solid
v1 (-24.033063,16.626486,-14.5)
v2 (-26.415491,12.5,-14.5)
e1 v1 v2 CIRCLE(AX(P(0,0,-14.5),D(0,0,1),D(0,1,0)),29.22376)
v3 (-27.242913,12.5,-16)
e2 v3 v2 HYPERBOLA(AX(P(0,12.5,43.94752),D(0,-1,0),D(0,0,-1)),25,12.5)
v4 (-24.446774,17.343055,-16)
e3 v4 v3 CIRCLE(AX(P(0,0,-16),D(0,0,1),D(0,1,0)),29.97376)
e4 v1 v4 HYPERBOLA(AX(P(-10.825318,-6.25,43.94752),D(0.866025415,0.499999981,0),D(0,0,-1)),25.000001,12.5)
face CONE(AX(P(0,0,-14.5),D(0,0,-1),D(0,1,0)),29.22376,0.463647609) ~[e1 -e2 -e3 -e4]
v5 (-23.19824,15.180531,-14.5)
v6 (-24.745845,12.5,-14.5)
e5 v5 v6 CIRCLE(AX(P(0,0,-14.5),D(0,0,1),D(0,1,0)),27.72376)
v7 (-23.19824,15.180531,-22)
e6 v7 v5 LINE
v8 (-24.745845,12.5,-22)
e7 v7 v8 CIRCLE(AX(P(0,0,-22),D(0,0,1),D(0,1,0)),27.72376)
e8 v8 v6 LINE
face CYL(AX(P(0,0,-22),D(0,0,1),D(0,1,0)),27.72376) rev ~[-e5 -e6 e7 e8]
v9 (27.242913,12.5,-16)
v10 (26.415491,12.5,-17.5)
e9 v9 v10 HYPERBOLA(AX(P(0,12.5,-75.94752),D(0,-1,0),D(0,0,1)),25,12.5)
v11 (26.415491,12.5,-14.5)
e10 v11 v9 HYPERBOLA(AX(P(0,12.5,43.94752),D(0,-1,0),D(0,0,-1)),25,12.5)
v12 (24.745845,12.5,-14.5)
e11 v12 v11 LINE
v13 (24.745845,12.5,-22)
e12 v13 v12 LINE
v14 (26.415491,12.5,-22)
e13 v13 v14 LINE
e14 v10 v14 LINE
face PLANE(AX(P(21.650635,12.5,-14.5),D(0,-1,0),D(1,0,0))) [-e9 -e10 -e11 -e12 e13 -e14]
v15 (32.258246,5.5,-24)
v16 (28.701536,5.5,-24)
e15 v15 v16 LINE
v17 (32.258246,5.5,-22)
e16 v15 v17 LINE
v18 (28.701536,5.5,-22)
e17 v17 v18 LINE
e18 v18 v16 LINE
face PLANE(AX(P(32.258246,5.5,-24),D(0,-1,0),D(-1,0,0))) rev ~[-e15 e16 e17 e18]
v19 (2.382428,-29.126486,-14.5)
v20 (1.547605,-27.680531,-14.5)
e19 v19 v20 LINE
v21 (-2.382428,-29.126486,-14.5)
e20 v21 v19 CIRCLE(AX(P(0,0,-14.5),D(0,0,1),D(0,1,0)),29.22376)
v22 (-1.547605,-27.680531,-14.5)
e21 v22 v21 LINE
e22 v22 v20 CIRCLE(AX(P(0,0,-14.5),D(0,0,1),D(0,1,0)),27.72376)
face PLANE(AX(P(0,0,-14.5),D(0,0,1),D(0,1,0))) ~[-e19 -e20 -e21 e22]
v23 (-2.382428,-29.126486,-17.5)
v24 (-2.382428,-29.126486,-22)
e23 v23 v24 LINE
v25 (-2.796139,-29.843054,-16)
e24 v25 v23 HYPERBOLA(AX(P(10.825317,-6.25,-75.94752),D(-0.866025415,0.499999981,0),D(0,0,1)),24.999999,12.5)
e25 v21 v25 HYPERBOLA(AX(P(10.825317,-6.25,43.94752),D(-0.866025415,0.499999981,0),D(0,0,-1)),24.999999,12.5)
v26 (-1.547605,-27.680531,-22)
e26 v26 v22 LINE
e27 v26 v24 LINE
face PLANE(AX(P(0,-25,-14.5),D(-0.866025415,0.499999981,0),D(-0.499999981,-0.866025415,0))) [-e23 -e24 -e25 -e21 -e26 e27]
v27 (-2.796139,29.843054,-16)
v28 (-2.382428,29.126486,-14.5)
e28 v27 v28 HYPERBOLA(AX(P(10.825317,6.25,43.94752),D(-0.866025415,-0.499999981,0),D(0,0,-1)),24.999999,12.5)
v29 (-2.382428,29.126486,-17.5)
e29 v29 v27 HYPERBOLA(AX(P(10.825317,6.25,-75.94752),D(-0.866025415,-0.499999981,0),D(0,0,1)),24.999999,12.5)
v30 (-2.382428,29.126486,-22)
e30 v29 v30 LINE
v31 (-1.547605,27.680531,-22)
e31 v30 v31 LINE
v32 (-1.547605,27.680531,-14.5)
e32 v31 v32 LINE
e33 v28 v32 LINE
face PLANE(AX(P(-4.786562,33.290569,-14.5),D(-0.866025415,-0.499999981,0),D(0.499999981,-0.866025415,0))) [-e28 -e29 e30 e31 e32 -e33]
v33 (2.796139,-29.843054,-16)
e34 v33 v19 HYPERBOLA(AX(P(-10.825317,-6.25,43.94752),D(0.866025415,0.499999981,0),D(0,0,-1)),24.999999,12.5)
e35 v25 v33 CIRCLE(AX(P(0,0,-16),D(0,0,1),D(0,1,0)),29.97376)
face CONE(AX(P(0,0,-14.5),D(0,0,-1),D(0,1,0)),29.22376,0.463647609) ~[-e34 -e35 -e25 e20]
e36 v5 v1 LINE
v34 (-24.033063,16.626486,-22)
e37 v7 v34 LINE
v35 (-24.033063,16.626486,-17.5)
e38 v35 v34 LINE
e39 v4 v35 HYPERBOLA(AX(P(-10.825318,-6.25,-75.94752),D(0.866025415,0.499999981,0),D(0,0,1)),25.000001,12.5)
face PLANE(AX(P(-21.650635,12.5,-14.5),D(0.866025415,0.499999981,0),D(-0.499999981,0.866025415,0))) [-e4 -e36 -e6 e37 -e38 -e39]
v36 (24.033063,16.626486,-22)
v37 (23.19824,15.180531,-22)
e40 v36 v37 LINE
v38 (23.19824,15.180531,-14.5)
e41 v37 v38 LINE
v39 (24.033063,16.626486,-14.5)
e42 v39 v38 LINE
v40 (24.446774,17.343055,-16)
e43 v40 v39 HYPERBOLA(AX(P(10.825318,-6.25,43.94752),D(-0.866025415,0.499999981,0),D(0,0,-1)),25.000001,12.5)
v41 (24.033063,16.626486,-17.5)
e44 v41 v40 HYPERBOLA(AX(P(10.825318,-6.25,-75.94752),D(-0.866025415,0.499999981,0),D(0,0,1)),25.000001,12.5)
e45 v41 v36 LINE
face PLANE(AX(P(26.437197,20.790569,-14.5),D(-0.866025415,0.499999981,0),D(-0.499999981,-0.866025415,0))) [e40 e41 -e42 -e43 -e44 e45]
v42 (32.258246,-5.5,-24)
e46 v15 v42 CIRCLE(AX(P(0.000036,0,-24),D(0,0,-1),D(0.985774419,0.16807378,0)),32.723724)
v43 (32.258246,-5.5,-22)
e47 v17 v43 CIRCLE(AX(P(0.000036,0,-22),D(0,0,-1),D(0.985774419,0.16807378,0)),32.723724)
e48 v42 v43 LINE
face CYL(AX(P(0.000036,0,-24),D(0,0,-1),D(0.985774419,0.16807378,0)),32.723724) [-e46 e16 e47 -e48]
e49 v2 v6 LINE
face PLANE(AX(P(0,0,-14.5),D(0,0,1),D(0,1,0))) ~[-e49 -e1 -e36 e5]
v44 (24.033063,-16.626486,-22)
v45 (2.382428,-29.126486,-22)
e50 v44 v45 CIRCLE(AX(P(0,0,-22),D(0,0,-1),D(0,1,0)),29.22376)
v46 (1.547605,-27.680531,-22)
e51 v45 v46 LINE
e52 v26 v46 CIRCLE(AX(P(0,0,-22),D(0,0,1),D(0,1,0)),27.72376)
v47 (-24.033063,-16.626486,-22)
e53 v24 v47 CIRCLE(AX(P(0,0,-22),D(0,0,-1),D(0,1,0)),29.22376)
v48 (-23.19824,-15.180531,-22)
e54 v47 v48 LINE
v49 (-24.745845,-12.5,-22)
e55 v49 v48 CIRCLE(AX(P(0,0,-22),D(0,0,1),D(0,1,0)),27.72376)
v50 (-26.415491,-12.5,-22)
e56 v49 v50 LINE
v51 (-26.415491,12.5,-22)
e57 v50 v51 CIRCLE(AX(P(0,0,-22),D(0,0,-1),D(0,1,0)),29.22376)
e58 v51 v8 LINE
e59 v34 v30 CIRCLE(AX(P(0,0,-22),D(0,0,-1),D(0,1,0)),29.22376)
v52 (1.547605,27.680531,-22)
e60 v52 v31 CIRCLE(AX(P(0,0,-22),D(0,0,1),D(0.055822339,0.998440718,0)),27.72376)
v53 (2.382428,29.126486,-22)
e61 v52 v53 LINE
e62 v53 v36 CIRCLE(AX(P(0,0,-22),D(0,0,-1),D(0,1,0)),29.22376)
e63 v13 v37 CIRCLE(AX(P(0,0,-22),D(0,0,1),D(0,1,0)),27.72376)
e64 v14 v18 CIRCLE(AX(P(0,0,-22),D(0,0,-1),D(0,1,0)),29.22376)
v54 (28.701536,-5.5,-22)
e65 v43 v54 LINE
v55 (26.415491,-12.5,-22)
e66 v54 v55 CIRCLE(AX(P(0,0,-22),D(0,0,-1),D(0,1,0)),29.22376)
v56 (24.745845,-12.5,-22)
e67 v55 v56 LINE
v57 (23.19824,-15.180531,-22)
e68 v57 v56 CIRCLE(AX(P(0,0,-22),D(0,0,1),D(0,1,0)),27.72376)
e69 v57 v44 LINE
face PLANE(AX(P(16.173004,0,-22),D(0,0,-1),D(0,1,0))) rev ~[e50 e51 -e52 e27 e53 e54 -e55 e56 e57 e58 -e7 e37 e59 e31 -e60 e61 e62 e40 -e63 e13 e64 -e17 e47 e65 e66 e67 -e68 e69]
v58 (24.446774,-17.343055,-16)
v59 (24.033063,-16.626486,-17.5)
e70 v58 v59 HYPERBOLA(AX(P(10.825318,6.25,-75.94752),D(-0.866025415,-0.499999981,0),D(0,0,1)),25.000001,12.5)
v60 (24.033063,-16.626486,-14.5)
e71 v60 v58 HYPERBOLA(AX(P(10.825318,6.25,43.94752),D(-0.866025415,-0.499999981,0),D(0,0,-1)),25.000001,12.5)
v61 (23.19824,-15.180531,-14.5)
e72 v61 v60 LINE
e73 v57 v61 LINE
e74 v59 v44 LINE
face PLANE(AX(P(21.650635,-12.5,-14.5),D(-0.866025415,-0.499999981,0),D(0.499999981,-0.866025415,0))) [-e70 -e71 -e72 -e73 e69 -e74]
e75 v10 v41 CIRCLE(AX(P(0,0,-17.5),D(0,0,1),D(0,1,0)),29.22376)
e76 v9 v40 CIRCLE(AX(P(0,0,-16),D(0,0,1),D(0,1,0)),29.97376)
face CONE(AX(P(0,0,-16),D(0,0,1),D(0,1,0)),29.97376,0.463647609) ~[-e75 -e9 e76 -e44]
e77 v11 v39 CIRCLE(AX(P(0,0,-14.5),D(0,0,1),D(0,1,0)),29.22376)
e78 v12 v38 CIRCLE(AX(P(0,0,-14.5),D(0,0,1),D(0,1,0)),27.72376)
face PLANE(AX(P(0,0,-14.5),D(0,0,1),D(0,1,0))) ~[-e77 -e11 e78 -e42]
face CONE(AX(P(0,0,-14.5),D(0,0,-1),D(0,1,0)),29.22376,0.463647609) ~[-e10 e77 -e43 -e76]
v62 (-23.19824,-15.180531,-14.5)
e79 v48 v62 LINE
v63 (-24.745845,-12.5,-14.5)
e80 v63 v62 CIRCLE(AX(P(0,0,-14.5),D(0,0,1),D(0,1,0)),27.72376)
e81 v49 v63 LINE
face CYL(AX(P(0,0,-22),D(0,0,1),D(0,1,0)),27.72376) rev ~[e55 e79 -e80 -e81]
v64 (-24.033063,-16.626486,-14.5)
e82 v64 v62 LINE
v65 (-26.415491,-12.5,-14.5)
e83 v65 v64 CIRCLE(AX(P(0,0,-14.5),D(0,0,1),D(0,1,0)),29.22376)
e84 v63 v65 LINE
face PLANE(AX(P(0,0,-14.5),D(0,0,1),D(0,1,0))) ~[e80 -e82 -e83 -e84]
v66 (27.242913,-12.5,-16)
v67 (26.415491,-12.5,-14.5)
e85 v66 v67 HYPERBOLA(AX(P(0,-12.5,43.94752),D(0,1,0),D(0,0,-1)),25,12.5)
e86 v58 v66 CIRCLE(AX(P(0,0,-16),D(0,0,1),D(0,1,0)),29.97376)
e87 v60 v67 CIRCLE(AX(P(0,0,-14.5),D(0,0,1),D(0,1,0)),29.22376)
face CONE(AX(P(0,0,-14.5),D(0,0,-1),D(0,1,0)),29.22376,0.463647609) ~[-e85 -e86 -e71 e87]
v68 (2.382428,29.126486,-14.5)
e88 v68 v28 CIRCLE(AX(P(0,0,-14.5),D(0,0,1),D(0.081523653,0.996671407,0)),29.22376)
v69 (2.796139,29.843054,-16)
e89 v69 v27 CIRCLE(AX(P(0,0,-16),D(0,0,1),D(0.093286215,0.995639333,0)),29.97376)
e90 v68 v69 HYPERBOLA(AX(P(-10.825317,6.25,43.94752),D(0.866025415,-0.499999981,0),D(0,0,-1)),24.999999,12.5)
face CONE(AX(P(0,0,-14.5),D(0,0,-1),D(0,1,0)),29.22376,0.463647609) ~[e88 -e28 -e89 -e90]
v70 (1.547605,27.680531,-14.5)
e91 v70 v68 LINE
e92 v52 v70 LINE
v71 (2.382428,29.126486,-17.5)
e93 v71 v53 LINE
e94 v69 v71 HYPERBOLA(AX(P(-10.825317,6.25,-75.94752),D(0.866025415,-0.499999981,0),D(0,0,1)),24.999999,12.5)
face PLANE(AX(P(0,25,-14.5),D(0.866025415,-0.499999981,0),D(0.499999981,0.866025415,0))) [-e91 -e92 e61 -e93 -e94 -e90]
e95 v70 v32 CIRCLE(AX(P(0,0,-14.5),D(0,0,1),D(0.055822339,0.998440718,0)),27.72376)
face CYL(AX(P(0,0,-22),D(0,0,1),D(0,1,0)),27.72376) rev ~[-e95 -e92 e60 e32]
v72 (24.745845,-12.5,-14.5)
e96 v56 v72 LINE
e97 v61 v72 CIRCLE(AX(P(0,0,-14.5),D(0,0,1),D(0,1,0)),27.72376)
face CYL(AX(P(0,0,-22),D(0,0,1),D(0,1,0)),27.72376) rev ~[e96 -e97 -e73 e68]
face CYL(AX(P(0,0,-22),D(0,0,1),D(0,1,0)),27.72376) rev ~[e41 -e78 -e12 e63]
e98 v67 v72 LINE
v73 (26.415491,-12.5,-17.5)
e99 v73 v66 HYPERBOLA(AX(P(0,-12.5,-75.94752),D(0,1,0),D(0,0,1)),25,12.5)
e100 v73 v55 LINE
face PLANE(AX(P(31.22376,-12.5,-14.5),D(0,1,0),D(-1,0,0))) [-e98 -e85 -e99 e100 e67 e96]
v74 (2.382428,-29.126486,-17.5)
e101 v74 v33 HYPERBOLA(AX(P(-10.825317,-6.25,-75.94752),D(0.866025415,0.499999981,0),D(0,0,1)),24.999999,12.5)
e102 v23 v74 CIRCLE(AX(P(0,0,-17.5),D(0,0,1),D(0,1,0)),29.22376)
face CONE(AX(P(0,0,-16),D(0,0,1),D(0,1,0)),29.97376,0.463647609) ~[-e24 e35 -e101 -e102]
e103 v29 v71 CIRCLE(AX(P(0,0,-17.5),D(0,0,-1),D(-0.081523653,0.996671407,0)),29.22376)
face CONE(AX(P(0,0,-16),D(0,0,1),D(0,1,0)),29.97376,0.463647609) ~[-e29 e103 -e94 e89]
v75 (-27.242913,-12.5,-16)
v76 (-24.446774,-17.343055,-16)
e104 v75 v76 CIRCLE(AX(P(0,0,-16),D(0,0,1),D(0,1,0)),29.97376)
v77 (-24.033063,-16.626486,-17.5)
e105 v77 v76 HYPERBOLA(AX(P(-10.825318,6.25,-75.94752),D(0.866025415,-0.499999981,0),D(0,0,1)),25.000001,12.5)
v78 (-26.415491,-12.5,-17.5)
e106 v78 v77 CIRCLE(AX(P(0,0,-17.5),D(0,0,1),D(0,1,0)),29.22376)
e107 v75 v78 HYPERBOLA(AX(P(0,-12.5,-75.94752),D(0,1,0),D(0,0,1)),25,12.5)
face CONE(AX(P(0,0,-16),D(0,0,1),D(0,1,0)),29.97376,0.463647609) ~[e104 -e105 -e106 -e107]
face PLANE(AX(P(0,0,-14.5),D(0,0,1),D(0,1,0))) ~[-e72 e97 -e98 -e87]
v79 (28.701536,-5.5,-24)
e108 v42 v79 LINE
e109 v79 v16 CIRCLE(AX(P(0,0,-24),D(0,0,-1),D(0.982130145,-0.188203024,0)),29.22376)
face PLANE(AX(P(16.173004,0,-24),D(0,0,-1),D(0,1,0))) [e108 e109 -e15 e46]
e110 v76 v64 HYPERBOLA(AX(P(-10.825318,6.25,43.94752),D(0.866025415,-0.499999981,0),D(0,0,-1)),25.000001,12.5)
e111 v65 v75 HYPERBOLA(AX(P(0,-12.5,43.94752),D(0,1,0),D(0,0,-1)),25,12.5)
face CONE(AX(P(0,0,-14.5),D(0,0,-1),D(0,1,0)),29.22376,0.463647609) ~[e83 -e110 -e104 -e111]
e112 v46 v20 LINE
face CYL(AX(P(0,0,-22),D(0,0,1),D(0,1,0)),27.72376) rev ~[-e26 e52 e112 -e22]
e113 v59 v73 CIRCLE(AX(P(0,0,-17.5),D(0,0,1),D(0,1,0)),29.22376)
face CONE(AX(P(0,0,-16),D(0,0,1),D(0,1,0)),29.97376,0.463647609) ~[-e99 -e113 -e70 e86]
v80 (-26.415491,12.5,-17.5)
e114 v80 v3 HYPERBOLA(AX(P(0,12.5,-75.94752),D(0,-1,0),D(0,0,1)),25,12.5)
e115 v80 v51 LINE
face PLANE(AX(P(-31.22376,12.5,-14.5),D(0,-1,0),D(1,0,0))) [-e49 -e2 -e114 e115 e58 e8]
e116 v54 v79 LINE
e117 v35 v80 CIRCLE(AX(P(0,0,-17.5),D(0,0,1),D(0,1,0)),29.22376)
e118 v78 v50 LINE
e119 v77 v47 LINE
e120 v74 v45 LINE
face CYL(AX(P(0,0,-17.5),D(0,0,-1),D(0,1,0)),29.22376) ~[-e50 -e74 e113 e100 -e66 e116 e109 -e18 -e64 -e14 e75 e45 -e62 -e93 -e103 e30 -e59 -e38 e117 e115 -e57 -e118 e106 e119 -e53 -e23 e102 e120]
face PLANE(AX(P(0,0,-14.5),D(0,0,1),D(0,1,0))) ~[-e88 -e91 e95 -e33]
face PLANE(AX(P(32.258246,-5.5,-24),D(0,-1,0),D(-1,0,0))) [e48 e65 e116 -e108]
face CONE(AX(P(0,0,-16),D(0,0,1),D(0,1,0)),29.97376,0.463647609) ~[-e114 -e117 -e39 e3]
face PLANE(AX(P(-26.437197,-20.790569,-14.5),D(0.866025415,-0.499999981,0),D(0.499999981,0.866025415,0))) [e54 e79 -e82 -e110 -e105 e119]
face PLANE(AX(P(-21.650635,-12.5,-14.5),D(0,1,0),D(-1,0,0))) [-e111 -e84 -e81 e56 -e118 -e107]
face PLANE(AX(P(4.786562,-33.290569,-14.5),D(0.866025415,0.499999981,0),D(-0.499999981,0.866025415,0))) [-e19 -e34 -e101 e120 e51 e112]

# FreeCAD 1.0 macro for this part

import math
import FreeCAD as App
import Part
import Sketcher
from FreeCAD import Vector
Q = App.Units.Quantity

doc = App.newDocument("Part")
body = doc.addObject("PartDesign::Body", "Body")

sketch1 = body.newObject("Sketcher::SketchObject", "Sketch")
sketch1.AttachmentSupport = (doc.getObject("YZ_Plane"), [""])
sketch1.MapMode = "FlatFace"
sketch1.addGeometry(Part.LineSegment(Vector(27.7, -22, 0), Vector(0, -22, 0)), False)
sketch1.addGeometry(Part.LineSegment(Vector(0, -22, 0), Vector(0, -24, 0)), False)
sketch1.addGeometry(Part.LineSegment(Vector(0, -24, 0), Vector(29.2, -24, 0)), False)
sketch1.addGeometry(Part.LineSegment(Vector(29.2, -24, 0), Vector(29.2, -17.5, 0)), False)
sketch1.addGeometry(Part.LineSegment(Vector(29.2, -17.5, 0), Vector(30, -16, 0)), False)
sketch1.addGeometry(Part.LineSegment(Vector(30, -16, 0), Vector(29.2, -14.5, 0)), False)
sketch1.addGeometry(Part.LineSegment(Vector(29.2, -14.5, 0), Vector(27.7, -14.5, 0)), False)
sketch1.addGeometry(Part.LineSegment(Vector(27.7, -14.5, 0), Vector(27.7, -22, 0)), False)
sketch1.addConstraint(Sketcher.Constraint("Coincident", 0, 2, 1, 1))
sketch1.addConstraint(Sketcher.Constraint("Coincident", 1, 2, 2, 1))
sketch1.addConstraint(Sketcher.Constraint("Coincident", 2, 2, 3, 1))
sketch1.addConstraint(Sketcher.Constraint("Coincident", 3, 2, 4, 1))
sketch1.addConstraint(Sketcher.Constraint("Coincident", 4, 2, 5, 1))
sketch1.addConstraint(Sketcher.Constraint("Coincident", 5, 2, 6, 1))
sketch1.addConstraint(Sketcher.Constraint("Coincident", 6, 2, 7, 1))
sketch1.addConstraint(Sketcher.Constraint("Coincident", 7, 2, 0, 1))
sketch1.addConstraint(Sketcher.Constraint("Horizontal", 0))
sketch1.addConstraint(Sketcher.Constraint("Vertical", 1))
sketch1.addConstraint(Sketcher.Constraint("Horizontal", 2))
sketch1.addConstraint(Sketcher.Constraint("Vertical", 3))
sketch1.addConstraint(Sketcher.Constraint("Horizontal", 6))
sketch1.addConstraint(Sketcher.Constraint("Vertical", 7))
sketch1.addConstraint(Sketcher.Constraint("PointOnObject", 0, 2, -2))
sketch1.addConstraint(Sketcher.Constraint("Vertical", 3, 2, 5, 2))
sketch1.addConstraint(Sketcher.Constraint("Equal", 4, 5))
sketch1.addConstraint(Sketcher.Constraint("DistanceY", 1, 2, 1, 1, Q("2 mm")))
sketch1.addConstraint(Sketcher.Constraint("DistanceX", 6, 2, 6, 1, Q("1.5 mm")))
sketch1.addConstraint(Sketcher.Constraint("DistanceY", 3, 1, 3, 2, Q("6.5 mm")))
sketch1.addConstraint(Sketcher.Constraint("DistanceY", 7, 2, 7, 1, Q("7.5 mm")))
sketch1.addConstraint(Sketcher.Constraint("DistanceY", 0, 2, -1, 1, Q("22 mm")))
sketch1.addConstraint(Sketcher.Constraint("DistanceX", 3, 2, 4, 2, Q("0.75 mm")))
sketch1.addConstraint(Sketcher.Constraint("DistanceX", 0, 2, 0, 1, Q("27.72376 mm")))
revolution = body.newObject("PartDesign::Revolution", "Revolution")
revolution.Profile = sketch1
revolution.ReferenceAxis = (sketch1, ["V_Axis"])
revolution.Angle = 360

sketch2 = body.newObject("Sketcher::SketchObject", "Sketch001")
sketch2.AttachmentSupport = (doc.getObject("XY_Plane"), [""])
sketch2.MapMode = "FlatFace"
sketch2.AttachmentOffset = App.Placement(Vector(0, 0, -14.5), App.Rotation())
sketch2.addGeometry(Part.LineSegment(Vector(31, -12, 0), Vector(31, 12, 0)), False)
sketch2.addGeometry(Part.LineSegment(Vector(31, 12, 0), Vector(22, 12, 0)), False)
sketch2.addGeometry(Part.LineSegment(Vector(22, 12, 0), Vector(26, 21, 0)), False)
sketch2.addGeometry(Part.LineSegment(Vector(26, 21, 0), Vector(5, 33, 0)), False)
sketch2.addGeometry(Part.LineSegment(Vector(5, 33, 0), Vector(0, 25, 0)), False)
sketch2.addGeometry(Part.LineSegment(Vector(0, 25, 0), Vector(-5, 33, 0)), False)
sketch2.addGeometry(Part.LineSegment(Vector(-5, 33, 0), Vector(-26, 21, 0)), False)
sketch2.addGeometry(Part.LineSegment(Vector(-26, 21, 0), Vector(-22, 12, 0)), False)
sketch2.addGeometry(Part.LineSegment(Vector(-22, 12, 0), Vector(-31, 12, 0)), False)
sketch2.addGeometry(Part.LineSegment(Vector(-31, 12, 0), Vector(-31, -12, 0)), False)
sketch2.addGeometry(Part.LineSegment(Vector(-31, -12, 0), Vector(-22, -12, 0)), False)
sketch2.addGeometry(Part.LineSegment(Vector(-22, -12, 0), Vector(-26, -21, 0)), False)
sketch2.addGeometry(Part.LineSegment(Vector(-26, -21, 0), Vector(-5, -33, 0)), False)
sketch2.addGeometry(Part.LineSegment(Vector(-5, -33, 0), Vector(0, -25, 0)), False)
sketch2.addGeometry(Part.LineSegment(Vector(0, -25, 0), Vector(5, -33, 0)), False)
sketch2.addGeometry(Part.LineSegment(Vector(5, -33, 0), Vector(26, -21, 0)), False)
sketch2.addGeometry(Part.LineSegment(Vector(26, -21, 0), Vector(22, -12, 0)), False)
sketch2.addGeometry(Part.LineSegment(Vector(22, -12, 0), Vector(31, -12, 0)), False)
sketch2.addConstraint(Sketcher.Constraint("Coincident", 0, 2, 1, 1))
sketch2.addConstraint(Sketcher.Constraint("Coincident", 1, 2, 2, 1))
sketch2.addConstraint(Sketcher.Constraint("Coincident", 2, 2, 3, 1))
sketch2.addConstraint(Sketcher.Constraint("Coincident", 3, 2, 4, 1))
sketch2.addConstraint(Sketcher.Constraint("Coincident", 4, 2, 5, 1))
sketch2.addConstraint(Sketcher.Constraint("Coincident", 5, 2, 6, 1))
sketch2.addConstraint(Sketcher.Constraint("Coincident", 6, 2, 7, 1))
sketch2.addConstraint(Sketcher.Constraint("Coincident", 7, 2, 8, 1))
sketch2.addConstraint(Sketcher.Constraint("Coincident", 8, 2, 9, 1))
sketch2.addConstraint(Sketcher.Constraint("Coincident", 9, 2, 10, 1))
sketch2.addConstraint(Sketcher.Constraint("Coincident", 10, 2, 11, 1))
sketch2.addConstraint(Sketcher.Constraint("Coincident", 11, 2, 12, 1))
sketch2.addConstraint(Sketcher.Constraint("Coincident", 12, 2, 13, 1))
sketch2.addConstraint(Sketcher.Constraint("Coincident", 13, 2, 14, 1))
sketch2.addConstraint(Sketcher.Constraint("Coincident", 14, 2, 15, 1))
sketch2.addConstraint(Sketcher.Constraint("Coincident", 15, 2, 16, 1))
sketch2.addConstraint(Sketcher.Constraint("Coincident", 16, 2, 17, 1))
sketch2.addConstraint(Sketcher.Constraint("Coincident", 17, 2, 0, 1))
sketch2.addConstraint(Sketcher.Constraint("Vertical", 0))
sketch2.addConstraint(Sketcher.Constraint("Horizontal", 1))
sketch2.addConstraint(Sketcher.Constraint("Horizontal", 8))
sketch2.addConstraint(Sketcher.Constraint("Vertical", 9))
sketch2.addConstraint(Sketcher.Constraint("Horizontal", 10))
sketch2.addConstraint(Sketcher.Constraint("Horizontal", 17))
sketch2.addConstraint(Sketcher.Constraint("Symmetric", 0, 2, 9, 2, -1, 1))
sketch2.addConstraint(Sketcher.Constraint("Symmetric", 2, 2, 11, 2, -1, 1))
sketch2.addConstraint(Sketcher.Constraint("Symmetric", 3, 2, 12, 2, -1, 1))
sketch2.addConstraint(Sketcher.Constraint("Symmetric", 4, 2, 13, 2, -1, 1))
sketch2.addConstraint(Sketcher.Constraint("Symmetric", 5, 2, 14, 2, -1, 1))
sketch2.addConstraint(Sketcher.Constraint("Symmetric", 6, 2, 15, 2, -1, 1))
sketch2.addConstraint(Sketcher.Constraint("Symmetric", 7, 2, 16, 2, -1, 1))
sketch2.addConstraint(Sketcher.Constraint("Symmetric", 3, 2, 5, 2, -2))
sketch2.addConstraint(Sketcher.Constraint("Symmetric", 2, 2, 6, 2, -2))
sketch2.addConstraint(Sketcher.Constraint("Symmetric", 1, 2, 7, 2, -2))
sketch2.addConstraint(Sketcher.Constraint("PointOnObject", 4, 2, -2))
sketch2.addConstraint(Sketcher.Constraint("Perpendicular", 2, 3))
sketch2.addConstraint(Sketcher.Constraint("Perpendicular", 3, 4))
sketch2.addConstraint(Sketcher.Constraint("Parallel", 4, 11))
sketch2.addConstraint(Sketcher.Constraint("Equal", 2, 4))
sketch2.addConstraint(Sketcher.Constraint("DistanceY", 0, 1, 0, 2, Q("25 mm")))
sketch2.addConstraint(Sketcher.Constraint("Angle", 2, Q("60.000001 deg")))
sketch2.addConstraint(Sketcher.Constraint("Distance", 3, Q("25 mm")))
sketch2.addConstraint(Sketcher.Constraint("DistanceX", 1, 2, 1, 1, Q("9.573125 mm")))
sketch2.addConstraint(Sketcher.Constraint("DistanceY", -1, 1, 2, 2, Q("20.790569 mm")))
pocket1 = body.newObject("PartDesign::Pocket", "Pocket")
pocket1.Profile = sketch2
pocket1.Length = 7.5

sketch3 = body.newObject("Sketcher::SketchObject", "Sketch002")
sketch3.AttachmentSupport = (doc.getObject("XY_Plane"), [""])
sketch3.MapMode = "FlatFace"
sketch3.AttachmentOffset = App.Placement(Vector(0, 0, -24), App.Rotation())
sketch3.addGeometry(Part.ArcOfCircle(Part.Circle(Vector(0, 0, 0), Vector(0, 0, 1), 33), math.radians(-9.68), math.radians(9.68)), False)
sketch3.addGeometry(Part.LineSegment(Vector(32, -6, 0), Vector(0, -6, 0)), False)
sketch3.addGeometry(Part.LineSegment(Vector(0, -6, 0), Vector(0, 6, 0)), False)
sketch3.addGeometry(Part.LineSegment(Vector(0, 6, 0), Vector(32, 6, 0)), False)
sketch3.addConstraint(Sketcher.Constraint("Coincident", 0, 1, 1, 1))
sketch3.addConstraint(Sketcher.Constraint("Coincident", 1, 2, 2, 1))
sketch3.addConstraint(Sketcher.Constraint("Coincident", 2, 2, 3, 1))
sketch3.addConstraint(Sketcher.Constraint("Coincident", 3, 2, 0, 2))
sketch3.addConstraint(Sketcher.Constraint("Horizontal", 1))
sketch3.addConstraint(Sketcher.Constraint("Vertical", 2))
sketch3.addConstraint(Sketcher.Constraint("Horizontal", 3))
sketch3.addConstraint(Sketcher.Constraint("Symmetric", 1, 2, 2, 2, -1, 1))
sketch3.addConstraint(Sketcher.Constraint("PointOnObject", 0, 3, -1))
sketch3.addConstraint(Sketcher.Constraint("DistanceY", 2, 1, 2, 2, Q("11 mm")))
sketch3.addConstraint(Sketcher.Constraint("Radius", 0, Q("32.723724 mm")))
sketch3.addConstraint(Sketcher.Constraint("DistanceX", 1, 2, 1, 1, Q("32.258246 mm")))
pad1 = body.newObject("PartDesign::Pad", "Pad")
pad1.Profile = sketch3
pad1.Length = 2

doc.recompute()
